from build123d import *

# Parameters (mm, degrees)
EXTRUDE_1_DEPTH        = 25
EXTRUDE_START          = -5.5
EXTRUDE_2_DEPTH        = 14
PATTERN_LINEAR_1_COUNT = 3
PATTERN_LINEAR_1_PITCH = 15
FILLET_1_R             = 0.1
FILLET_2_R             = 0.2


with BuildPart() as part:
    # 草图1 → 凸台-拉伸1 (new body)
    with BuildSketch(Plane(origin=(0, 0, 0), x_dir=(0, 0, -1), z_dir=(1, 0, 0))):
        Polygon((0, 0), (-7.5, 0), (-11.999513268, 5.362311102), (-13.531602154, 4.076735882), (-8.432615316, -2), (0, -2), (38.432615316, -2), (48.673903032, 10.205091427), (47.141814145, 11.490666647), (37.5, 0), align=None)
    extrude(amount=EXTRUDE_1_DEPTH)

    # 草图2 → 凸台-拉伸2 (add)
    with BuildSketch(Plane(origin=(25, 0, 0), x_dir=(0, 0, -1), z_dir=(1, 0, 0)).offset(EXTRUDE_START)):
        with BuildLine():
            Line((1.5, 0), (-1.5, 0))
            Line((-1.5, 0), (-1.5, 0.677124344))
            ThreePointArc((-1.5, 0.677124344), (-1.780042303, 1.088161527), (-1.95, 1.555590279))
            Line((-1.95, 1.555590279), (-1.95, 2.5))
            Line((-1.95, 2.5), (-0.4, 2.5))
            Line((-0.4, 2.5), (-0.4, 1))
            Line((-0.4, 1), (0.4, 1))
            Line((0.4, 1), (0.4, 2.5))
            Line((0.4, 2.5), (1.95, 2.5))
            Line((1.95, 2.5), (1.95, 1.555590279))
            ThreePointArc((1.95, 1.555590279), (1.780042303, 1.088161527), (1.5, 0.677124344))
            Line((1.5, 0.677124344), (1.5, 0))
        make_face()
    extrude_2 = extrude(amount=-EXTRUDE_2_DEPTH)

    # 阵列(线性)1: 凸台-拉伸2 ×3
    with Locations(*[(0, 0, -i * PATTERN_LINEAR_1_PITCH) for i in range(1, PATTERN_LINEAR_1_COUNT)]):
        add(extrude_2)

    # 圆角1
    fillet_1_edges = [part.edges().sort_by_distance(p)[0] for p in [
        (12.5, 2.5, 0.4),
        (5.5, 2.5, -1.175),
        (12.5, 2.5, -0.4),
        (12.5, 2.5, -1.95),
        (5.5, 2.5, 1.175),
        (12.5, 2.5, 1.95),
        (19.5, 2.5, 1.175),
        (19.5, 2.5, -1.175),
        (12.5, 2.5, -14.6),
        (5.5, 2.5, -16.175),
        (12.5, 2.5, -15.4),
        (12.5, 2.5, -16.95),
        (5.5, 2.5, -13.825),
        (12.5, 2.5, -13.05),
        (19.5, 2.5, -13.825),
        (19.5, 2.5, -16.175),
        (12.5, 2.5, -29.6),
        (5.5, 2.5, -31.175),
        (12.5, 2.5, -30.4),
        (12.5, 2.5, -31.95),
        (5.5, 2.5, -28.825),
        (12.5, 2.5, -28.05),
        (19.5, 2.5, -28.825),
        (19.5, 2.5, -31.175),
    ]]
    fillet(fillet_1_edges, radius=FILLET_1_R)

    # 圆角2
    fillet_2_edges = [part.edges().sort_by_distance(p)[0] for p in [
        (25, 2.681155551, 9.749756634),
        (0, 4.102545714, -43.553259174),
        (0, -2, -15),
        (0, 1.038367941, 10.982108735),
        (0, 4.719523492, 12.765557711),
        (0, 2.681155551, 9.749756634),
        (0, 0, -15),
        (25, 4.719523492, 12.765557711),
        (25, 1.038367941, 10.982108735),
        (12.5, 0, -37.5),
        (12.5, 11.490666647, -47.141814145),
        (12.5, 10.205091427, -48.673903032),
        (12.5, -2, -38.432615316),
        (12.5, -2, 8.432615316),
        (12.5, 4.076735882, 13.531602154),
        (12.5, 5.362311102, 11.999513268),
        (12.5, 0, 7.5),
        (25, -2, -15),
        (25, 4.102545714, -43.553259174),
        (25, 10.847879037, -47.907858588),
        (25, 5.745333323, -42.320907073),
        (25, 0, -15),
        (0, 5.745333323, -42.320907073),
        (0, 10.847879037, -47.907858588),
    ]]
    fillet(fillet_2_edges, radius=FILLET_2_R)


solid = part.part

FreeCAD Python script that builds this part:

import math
import FreeCAD as App
import Part
import Sketcher
Q = App.Units.Quantity


def edges_at(feature, points):
    """Names of the edges that pass closest to the given points."""
    edges = feature.Shape.Edges
    near = lambda p: min(range(len(edges)), key=lambda i: edges[i].distToShape(Part.Vertex(*p))[0])
    return sorted({f"Edge{near(p) + 1}" for p in points})

doc = App.newDocument("Part")
body = doc.addObject("PartDesign::Body", "Body")

# Sketch on YZ plane
sketch1 = body.newObject("Sketcher::SketchObject", "Sketch")
sketch1.AttachmentSupport = (doc.getObject("YZ_Plane"), [""])
sketch1.MapMode = "FlatFace"
sketch1.addGeometry(Part.LineSegment(App.Vector(0, 7.5, 0), App.Vector(5.4, 12, 0)), False)
sketch1.addGeometry(Part.LineSegment(App.Vector(5.4, 12, 0), App.Vector(4.1, 13.5, 0)), False)
sketch1.addGeometry(Part.LineSegment(App.Vector(4.1, 13.5, 0), App.Vector(-2, 8.4, 0)), False)
sketch1.addGeometry(Part.LineSegment(App.Vector(-2, 8.4, 0), App.Vector(-2, -38.4, 0)), False)
sketch1.addGeometry(Part.LineSegment(App.Vector(-2, -38.4, 0), App.Vector(10.2, -48.7, 0)), False)
sketch1.addGeometry(Part.LineSegment(App.Vector(10.2, -48.7, 0), App.Vector(11.5, -47.1, 0)), False)
sketch1.addGeometry(Part.LineSegment(App.Vector(11.5, -47.1, 0), App.Vector(0, -37.5, 0)), False)
sketch1.addGeometry(Part.LineSegment(App.Vector(0, -37.5, 0), App.Vector(0, 7.5, 0)), False)
sketch1.addConstraint(Sketcher.Constraint("Coincident", 0, 2, 1, 1))
sketch1.addConstraint(Sketcher.Constraint("Coincident", 1, 2, 2, 1))
sketch1.addConstraint(Sketcher.Constraint("Coincident", 2, 2, 3, 1))
sketch1.addConstraint(Sketcher.Constraint("Coincident", 3, 2, 4, 1))
sketch1.addConstraint(Sketcher.Constraint("Coincident", 4, 2, 5, 1))
sketch1.addConstraint(Sketcher.Constraint("Coincident", 5, 2, 6, 1))
sketch1.addConstraint(Sketcher.Constraint("Coincident", 6, 2, 7, 1))
sketch1.addConstraint(Sketcher.Constraint("Coincident", 7, 2, 0, 1))
sketch1.addConstraint(Sketcher.Constraint("Vertical", 3))
sketch1.addConstraint(Sketcher.Constraint("Vertical", 7))
sketch1.addConstraint(Sketcher.Constraint("PointOnObject", 6, 2, -2))
sketch1.addConstraint(Sketcher.Constraint("Perpendicular", 0, 1))
sketch1.addConstraint(Sketcher.Constraint("Perpendicular", 1, 2))
sketch1.addConstraint(Sketcher.Constraint("Perpendicular", 4, 5))
sketch1.addConstraint(Sketcher.Constraint("Perpendicular", 5, 6))
sketch1.addConstraint(Sketcher.Constraint("Equal", 1, 5))
sketch1.addConstraint(Sketcher.Constraint("DistanceY", 7, 1, 7, 2, 45.0))
sketch1.addConstraint(Sketcher.Constraint("Angle", 0, Q("40 deg")))
sketch1.addConstraint(Sketcher.Constraint("Angle", 4, Q("-40 deg")))
sketch1.addConstraint(Sketcher.Constraint("Distance", 0, 7.0))
sketch1.addConstraint(Sketcher.Constraint("Distance", 1, 2.0))
sketch1.addConstraint(Sketcher.Constraint("Distance", 6, 15.0))
sketch1.addConstraint(Sketcher.Constraint("DistanceX", 2, 2, -1, 1, 2.0))
sketch1.addConstraint(Sketcher.Constraint("DistanceY", 6, 2, -1, 1, 37.5))
pad1 = body.newObject("PartDesign::Pad", "Pad")
pad1.Profile = sketch1
pad1.Length = 25

# Sketch on YZ plane
sketch2 = body.newObject("Sketcher::SketchObject", "Sketch001")
sketch2.AttachmentSupport = (doc.getObject("YZ_Plane"), [""])
sketch2.MapMode = "FlatFace"
sketch2.AttachmentOffset = App.Placement(App.Vector(0, 0, 19.5), App.Rotation())
sketch2.addGeometry(Part.LineSegment(App.Vector(0, 1.5, 0), App.Vector(0, -1.5, 0)), False)
sketch2.addGeometry(Part.LineSegment(App.Vector(0, -1.5, 0), App.Vector(0.7, -1.5, 0)), False)
sketch2.addGeometry(Part.ArcOfCircle(Part.Circle(App.Vector(2, 0, 0), App.Vector(0, 0, 1), 2), math.radians(-131), math.radians(-103)), False)
sketch2.addGeometry(Part.LineSegment(App.Vector(1.6, -1.9, 0), App.Vector(2.5, -1.9, 0)), False)
sketch2.addGeometry(Part.LineSegment(App.Vector(2.5, -1.9, 0), App.Vector(2.5, -0.4, 0)), False)
sketch2.addGeometry(Part.LineSegment(App.Vector(2.5, -0.4, 0), App.Vector(1, -0.4, 0)), False)
sketch2.addGeometry(Part.LineSegment(App.Vector(1, -0.4, 0), App.Vector(1, 0.4, 0)), False)
sketch2.addGeometry(Part.LineSegment(App.Vector(1, 0.4, 0), App.Vector(2.5, 0.4, 0)), False)
sketch2.addGeometry(Part.LineSegment(App.Vector(2.5, 0.4, 0), App.Vector(2.5, 1.9, 0)), False)
sketch2.addGeometry(Part.LineSegment(App.Vector(2.5, 1.9, 0), App.Vector(1.6, 1.9, 0)), False)
sketch2.addGeometry(Part.ArcOfCircle(Part.Circle(App.Vector(2, 0, 0), App.Vector(0, 0, 1), 2), math.radians(103), math.radians(131)), False)
sketch2.addGeometry(Part.LineSegment(App.Vector(0.7, 1.5, 0), App.Vector(0, 1.5, 0)), False)
sketch2.addConstraint(Sketcher.Constraint("Coincident", 0, 2, 1, 1))
sketch2.addConstraint(Sketcher.Constraint("Coincident", 1, 2, 2, 1))
sketch2.addConstraint(Sketcher.Constraint("Coincident", 2, 2, 3, 1))
sketch2.addConstraint(Sketcher.Constraint("Coincident", 3, 2, 4, 1))
sketch2.addConstraint(Sketcher.Constraint("Coincident", 4, 2, 5, 1))
sketch2.addConstraint(Sketcher.Constraint("Coincident", 5, 2, 6, 1))
sketch2.addConstraint(Sketcher.Constraint("Coincident", 6, 2, 7, 1))
sketch2.addConstraint(Sketcher.Constraint("Coincident", 7, 2, 8, 1))
sketch2.addConstraint(Sketcher.Constraint("Coincident", 8, 2, 9, 1))
sketch2.addConstraint(Sketcher.Constraint("Coincident", 9, 2, 10, 1))
sketch2.addConstraint(Sketcher.Constraint("Coincident", 10, 2, 11, 1))
sketch2.addConstraint(Sketcher.Constraint("Coincident", 11, 2, 0, 1))
sketch2.addConstraint(Sketcher.Constraint("Vertical", 0))
sketch2.addConstraint(Sketcher.Constraint("Horizontal", 1))
sketch2.addConstraint(Sketcher.Constraint("Horizontal", 3))
sketch2.addConstraint(Sketcher.Constraint("Vertical", 4))
sketch2.addConstraint(Sketcher.Constraint("Horizontal", 5))
sketch2.addConstraint(Sketcher.Constraint("Vertical", 6))
sketch2.addConstraint(Sketcher.Constraint("Horizontal", 7))
sketch2.addConstraint(Sketcher.Constraint("Vertical", 8))
sketch2.addConstraint(Sketcher.Constraint("Horizontal", 9))
sketch2.addConstraint(Sketcher.Constraint("Horizontal", 11))
sketch2.addConstraint(Sketcher.Constraint("Coincident", 10, 3, 2, 3))
sketch2.addConstraint(Sketcher.Constraint("Equal", 2, 10))
sketch2.addConstraint(Sketcher.Constraint("Symmetric", 0, 2, 11, 2, -1, 1))
sketch2.addConstraint(Sketcher.Constraint("Symmetric", 4, 2, 7, 2, -1))
sketch2.addConstraint(Sketcher.Constraint("Symmetric", 2, 2, 9, 2, -1))
sketch2.addConstraint(Sketcher.Constraint("Radius", 2, 2.0))
sketch2.addConstraint(Sketcher.Constraint("DistanceY", 0, 2, 0, 1, 3.0))
sketch2.addConstraint(Sketcher.Constraint("DistanceX", 5, 2, 5, 1, 1.5))
sketch2.addConstraint(Sketcher.Constraint("DistanceY", 6, 1, 6, 2, 0.8))
sketch2.addConstraint(Sketcher.Constraint("DistanceX", -1, 1, 2, 3, 2.0))
sketch2.addConstraint(Sketcher.Constraint("DistanceX", -1, 1, 5, 2, 1.0))
sketch2.addConstraint(Sketcher.Constraint("DistanceY", 4, 1, 4, 2, 1.55))
pad2 = body.newObject("PartDesign::Pad", "Pad001")
pad2.Profile = sketch2
pad2.Length = 14
pad2.Reversed = True
doc.recompute()

linearpattern = body.newObject("PartDesign::LinearPattern", "LinearPattern")
linearpattern.Originals = [pad2]
linearpattern.Direction = (doc.getObject("Z_Axis"), [""])
linearpattern.Mode = "offset"
linearpattern.Offset = 15
linearpattern.Occurrences = 3
linearpattern.Reversed = True
body.Tip = linearpattern
doc.recompute()

fillet = body.newObject("PartDesign::Fillet", "Fillet")
fillet.Base = (linearpattern, edges_at(linearpattern, [
    (12.5, 2.5, 0.4),
    (5.5, 2.5, -1.175),
    (12.5, 2.5, -0.4),
    (12.5, 2.5, -1.95),
    (5.5, 2.5, 1.175),
    (12.5, 2.5, 1.95),
    (19.5, 2.5, 1.175),
    (19.5, 2.5, -1.175),
    (12.5, 2.5, -14.6),
    (5.5, 2.5, -16.175),
    (12.5, 2.5, -15.4),
    (12.5, 2.5, -16.95),
    (5.5, 2.5, -13.825),
    (12.5, 2.5, -13.05),
    (19.5, 2.5, -13.825),
    (19.5, 2.5, -16.175),
    (12.5, 2.5, -29.6),
    (5.5, 2.5, -31.175),
    (12.5, 2.5, -30.4),
    (12.5, 2.5, -31.95),
    (5.5, 2.5, -28.825),
    (12.5, 2.5, -28.05),
    (19.5, 2.5, -28.825),
    (19.5, 2.5, -31.175),
]))
fillet.Radius = 0.1
doc.recompute()

fillet2 = body.newObject("PartDesign::Fillet", "Fillet001")
fillet2.Base = (fillet, edges_at(fillet, [
    (25, 2.681, 9.75),
    (0, 4.103, -43.553),
    (0, -2, -15),
    (0, 1.038, 10.982),
    (0, 4.72, 12.766),
    (0, 2.681, 9.75),
    (0, 0, -15),
    (25, 4.72, 12.766),
    (25, 1.038, 10.982),
    (12.5, 0, -37.5),
    (12.5, 11.491, -47.142),
    (12.5, 10.205, -48.674),
    (12.5, -2, -38.433),
    (12.5, -2, 8.433),
    (12.5, 4.077, 13.532),
    (12.5, 5.362, 12),
    (12.5, 0, 7.5),
    (25, -2, -15),
    (25, 4.103, -43.553),
    (25, 10.848, -47.908),
    (25, 5.745, -42.321),
    (25, 0, -15),
    (0, 5.745, -42.321),
    (0, 10.848, -47.908),
]))
fillet2.Radius = 0.2

doc.recompute()
